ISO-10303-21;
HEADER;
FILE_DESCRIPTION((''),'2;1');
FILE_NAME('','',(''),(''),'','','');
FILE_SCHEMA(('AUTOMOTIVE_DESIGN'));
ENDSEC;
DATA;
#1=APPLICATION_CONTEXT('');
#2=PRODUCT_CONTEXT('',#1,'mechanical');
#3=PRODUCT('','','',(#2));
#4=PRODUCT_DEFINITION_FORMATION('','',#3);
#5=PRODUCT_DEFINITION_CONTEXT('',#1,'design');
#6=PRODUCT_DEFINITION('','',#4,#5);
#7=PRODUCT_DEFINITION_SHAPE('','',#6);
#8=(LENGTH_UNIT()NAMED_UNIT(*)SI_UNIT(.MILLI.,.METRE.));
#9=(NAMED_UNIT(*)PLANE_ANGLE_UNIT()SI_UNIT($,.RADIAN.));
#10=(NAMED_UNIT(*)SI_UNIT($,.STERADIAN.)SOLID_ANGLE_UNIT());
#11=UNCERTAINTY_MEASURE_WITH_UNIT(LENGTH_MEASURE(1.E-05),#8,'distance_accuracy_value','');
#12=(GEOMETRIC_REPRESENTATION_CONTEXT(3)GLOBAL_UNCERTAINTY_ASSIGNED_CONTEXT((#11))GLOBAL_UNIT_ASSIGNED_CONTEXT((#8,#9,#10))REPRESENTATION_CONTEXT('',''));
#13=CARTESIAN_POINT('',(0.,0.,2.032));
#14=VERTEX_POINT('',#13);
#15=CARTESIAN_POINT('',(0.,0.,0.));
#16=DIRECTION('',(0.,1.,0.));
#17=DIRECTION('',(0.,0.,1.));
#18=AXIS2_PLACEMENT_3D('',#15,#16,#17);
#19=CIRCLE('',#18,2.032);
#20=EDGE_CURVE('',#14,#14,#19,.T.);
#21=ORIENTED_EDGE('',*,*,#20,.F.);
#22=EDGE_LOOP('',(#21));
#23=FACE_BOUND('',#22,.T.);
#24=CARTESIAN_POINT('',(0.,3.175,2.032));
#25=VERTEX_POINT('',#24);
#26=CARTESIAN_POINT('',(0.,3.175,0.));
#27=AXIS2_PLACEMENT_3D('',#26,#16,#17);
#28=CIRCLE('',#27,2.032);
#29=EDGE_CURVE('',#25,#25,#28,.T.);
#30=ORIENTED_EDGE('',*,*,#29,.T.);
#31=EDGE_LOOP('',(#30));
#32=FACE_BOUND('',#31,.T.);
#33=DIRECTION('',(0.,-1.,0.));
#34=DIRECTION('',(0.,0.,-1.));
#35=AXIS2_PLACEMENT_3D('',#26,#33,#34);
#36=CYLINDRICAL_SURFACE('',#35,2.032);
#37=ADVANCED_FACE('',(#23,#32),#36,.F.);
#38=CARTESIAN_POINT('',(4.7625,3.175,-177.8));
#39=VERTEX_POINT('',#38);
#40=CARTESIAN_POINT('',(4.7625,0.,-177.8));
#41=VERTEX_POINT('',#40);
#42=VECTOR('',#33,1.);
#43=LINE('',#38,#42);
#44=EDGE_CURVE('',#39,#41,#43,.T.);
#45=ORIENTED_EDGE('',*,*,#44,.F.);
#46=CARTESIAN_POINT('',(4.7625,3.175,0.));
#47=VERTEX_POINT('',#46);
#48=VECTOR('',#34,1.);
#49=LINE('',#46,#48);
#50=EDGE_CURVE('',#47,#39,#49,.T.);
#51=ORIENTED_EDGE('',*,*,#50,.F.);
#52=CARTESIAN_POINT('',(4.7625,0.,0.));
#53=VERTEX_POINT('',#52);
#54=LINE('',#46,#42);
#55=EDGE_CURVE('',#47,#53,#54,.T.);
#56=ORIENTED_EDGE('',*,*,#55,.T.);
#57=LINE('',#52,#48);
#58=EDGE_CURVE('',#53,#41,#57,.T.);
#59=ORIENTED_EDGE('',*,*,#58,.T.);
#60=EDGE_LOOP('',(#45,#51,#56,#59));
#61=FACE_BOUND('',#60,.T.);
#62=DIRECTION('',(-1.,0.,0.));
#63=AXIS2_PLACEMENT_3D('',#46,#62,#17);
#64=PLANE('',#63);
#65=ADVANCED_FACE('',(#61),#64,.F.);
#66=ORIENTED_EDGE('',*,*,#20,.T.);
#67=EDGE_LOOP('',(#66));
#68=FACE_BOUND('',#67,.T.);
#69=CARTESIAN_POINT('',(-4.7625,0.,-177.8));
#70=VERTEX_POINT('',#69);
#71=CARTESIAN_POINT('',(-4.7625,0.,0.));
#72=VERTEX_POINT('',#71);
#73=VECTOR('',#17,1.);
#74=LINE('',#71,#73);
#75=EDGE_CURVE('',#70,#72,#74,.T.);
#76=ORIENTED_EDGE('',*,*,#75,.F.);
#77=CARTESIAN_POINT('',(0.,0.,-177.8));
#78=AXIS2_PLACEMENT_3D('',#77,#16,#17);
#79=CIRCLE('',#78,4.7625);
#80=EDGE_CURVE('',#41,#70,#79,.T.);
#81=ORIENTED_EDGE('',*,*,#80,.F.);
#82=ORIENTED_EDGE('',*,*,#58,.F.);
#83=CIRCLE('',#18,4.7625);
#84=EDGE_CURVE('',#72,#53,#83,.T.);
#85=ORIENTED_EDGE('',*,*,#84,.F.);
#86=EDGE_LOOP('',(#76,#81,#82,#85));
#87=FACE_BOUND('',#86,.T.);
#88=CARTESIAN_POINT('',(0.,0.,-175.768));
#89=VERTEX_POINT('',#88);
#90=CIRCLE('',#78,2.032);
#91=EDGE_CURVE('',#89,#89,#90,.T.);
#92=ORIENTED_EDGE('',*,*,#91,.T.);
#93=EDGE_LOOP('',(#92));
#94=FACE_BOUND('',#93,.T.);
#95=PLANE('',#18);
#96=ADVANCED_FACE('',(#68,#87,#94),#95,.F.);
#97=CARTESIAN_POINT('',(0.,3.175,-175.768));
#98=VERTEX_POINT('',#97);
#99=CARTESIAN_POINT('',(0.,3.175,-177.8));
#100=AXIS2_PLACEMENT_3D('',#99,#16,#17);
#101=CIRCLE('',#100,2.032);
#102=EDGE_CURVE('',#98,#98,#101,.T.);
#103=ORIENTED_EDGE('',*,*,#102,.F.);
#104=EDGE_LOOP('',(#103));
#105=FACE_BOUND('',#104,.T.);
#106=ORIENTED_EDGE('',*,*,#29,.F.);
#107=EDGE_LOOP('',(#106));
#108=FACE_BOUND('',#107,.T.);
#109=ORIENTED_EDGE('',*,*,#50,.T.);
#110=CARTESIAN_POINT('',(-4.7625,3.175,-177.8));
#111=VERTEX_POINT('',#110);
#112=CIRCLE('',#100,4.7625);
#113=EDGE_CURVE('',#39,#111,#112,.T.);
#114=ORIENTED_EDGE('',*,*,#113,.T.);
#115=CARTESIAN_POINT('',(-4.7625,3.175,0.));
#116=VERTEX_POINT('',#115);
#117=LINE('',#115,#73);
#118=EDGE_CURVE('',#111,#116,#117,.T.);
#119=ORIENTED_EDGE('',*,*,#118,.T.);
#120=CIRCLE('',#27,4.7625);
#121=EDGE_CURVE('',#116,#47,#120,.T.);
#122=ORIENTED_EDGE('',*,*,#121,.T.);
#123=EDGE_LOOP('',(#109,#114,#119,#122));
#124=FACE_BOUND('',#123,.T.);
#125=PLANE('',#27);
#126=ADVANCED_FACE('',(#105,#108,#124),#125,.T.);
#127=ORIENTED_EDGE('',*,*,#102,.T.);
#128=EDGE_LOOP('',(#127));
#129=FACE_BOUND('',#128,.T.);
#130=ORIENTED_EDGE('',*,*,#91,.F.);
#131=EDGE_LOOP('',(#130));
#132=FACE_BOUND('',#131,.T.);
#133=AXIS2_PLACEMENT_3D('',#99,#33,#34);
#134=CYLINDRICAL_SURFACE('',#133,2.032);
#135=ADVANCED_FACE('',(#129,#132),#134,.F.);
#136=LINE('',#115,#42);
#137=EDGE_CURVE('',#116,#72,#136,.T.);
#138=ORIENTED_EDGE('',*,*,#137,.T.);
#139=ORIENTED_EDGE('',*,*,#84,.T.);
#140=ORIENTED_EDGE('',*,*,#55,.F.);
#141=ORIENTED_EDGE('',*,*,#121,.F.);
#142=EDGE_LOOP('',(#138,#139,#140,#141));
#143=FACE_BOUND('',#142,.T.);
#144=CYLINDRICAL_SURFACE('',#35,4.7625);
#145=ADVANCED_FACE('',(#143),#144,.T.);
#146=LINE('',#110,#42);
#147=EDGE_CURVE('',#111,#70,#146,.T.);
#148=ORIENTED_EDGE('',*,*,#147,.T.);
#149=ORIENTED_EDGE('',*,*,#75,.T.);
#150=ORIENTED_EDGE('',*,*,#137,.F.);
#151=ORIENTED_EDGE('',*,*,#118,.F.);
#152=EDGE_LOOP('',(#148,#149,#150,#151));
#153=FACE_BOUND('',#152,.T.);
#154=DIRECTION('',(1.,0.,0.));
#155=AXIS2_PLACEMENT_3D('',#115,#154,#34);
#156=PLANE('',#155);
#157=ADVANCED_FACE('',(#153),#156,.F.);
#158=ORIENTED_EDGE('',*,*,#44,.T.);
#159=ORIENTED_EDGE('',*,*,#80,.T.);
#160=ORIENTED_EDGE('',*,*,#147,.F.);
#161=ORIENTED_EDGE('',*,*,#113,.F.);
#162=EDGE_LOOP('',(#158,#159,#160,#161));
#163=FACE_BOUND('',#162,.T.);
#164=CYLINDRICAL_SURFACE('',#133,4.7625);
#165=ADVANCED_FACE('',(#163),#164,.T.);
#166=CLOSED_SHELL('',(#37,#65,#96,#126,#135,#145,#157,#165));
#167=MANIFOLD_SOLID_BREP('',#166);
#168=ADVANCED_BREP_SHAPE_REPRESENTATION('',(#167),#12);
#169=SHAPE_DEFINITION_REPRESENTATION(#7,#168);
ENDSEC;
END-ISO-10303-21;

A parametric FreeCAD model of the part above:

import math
import FreeCAD as App
import Part
import Sketcher

V = App.Vector
Q = App.Units.Quantity

doc = App.newDocument("Part")
params = doc.addObject("Spreadsheet::Sheet", "Params")
for row, (alias, value) in enumerate([
    ("sketch1_diameter", "0.16 in"),
    ("sketch1_height", "7 in"),
    ("sketch1_radius", "0.1875 in"),
    ("pad1_length", "0.125 in"),
], start=1):
    params.set(f"A{row}", alias)
    params.set(f"B{row}", "=" + value)
    params.setAlias(f"B{row}", alias)

body = doc.addObject("PartDesign::Body", "Body")

# Sketch on XZ plane
sketch1 = doc.addObject("Sketcher::SketchObject", "Sketch")
body.addObject(sketch1)
sketch1.AttachmentSupport = (doc.XZ_Plane, [""])
sketch1.MapMode = "FlatFace"
sketch1.addGeometry(Part.LineSegment(V(-4.8, -177.8, 0), V(-4.8, 0, 0)), False)
sketch1.addGeometry(Part.ArcOfCircle(Part.Circle(V(0, 0, 0), V(0, 0, 1), 4.8), math.radians(0), math.radians(180)), False)
sketch1.addGeometry(Part.LineSegment(V(4.8, 0, 0), V(4.8, -177.8, 0)), False)
sketch1.addGeometry(Part.ArcOfCircle(Part.Circle(V(0, -177.8, 0), V(0, 0, 1), 4.8), math.radians(180), math.radians(360)), False)
sketch1.addGeometry(Part.Circle(V(0, 0, 0), V(0, 0, 1), 2), False)
sketch1.addGeometry(Part.Circle(V(0, -177.8, 0), V(0, 0, 1), 2), False)
sketch1.addConstraint(Sketcher.Constraint("Tangent", 0, 2, 1, 2))
sketch1.addConstraint(Sketcher.Constraint("Tangent", 1, 1, 2, 1))
sketch1.addConstraint(Sketcher.Constraint("Tangent", 2, 2, 3, 2))
sketch1.addConstraint(Sketcher.Constraint("Tangent", 3, 1, 0, 1))
sketch1.addConstraint(Sketcher.Constraint("Vertical", 0))
sketch1.addConstraint(Sketcher.Constraint("Vertical", 2))
sketch1.addConstraint(Sketcher.Constraint("Coincident", 1, 3, -1, 1))
sketch1.addConstraint(Sketcher.Constraint("Coincident", 4, 3, -1, 1))
sketch1.addConstraint(Sketcher.Constraint("Coincident", 5, 3, 3, 3))
sketch1.addConstraint(Sketcher.Constraint("Equal", 4, 5))
sketch1.addConstraint(Sketcher.Constraint("Diameter", 4, Q("0.16 in")))
sketch1.addConstraint(Sketcher.Constraint("DistanceY", 0, 1, 0, 2, Q("7 in")))
sketch1.addConstraint(Sketcher.Constraint("Radius", 1, Q("0.1875 in")))
sketch1.setExpression("Constraints[10]", "Params.sketch1_diameter")
sketch1.setExpression("Constraints[11]", "Params.sketch1_height")
sketch1.setExpression("Constraints[12]", "Params.sketch1_radius")
pad1 = doc.addObject("PartDesign::Pad", "Pad")
body.addObject(pad1)
pad1.Profile = sketch1
pad1.setExpression("Length", "Params.pad1_length")
pad1.Reversed = True

doc.recompute()
